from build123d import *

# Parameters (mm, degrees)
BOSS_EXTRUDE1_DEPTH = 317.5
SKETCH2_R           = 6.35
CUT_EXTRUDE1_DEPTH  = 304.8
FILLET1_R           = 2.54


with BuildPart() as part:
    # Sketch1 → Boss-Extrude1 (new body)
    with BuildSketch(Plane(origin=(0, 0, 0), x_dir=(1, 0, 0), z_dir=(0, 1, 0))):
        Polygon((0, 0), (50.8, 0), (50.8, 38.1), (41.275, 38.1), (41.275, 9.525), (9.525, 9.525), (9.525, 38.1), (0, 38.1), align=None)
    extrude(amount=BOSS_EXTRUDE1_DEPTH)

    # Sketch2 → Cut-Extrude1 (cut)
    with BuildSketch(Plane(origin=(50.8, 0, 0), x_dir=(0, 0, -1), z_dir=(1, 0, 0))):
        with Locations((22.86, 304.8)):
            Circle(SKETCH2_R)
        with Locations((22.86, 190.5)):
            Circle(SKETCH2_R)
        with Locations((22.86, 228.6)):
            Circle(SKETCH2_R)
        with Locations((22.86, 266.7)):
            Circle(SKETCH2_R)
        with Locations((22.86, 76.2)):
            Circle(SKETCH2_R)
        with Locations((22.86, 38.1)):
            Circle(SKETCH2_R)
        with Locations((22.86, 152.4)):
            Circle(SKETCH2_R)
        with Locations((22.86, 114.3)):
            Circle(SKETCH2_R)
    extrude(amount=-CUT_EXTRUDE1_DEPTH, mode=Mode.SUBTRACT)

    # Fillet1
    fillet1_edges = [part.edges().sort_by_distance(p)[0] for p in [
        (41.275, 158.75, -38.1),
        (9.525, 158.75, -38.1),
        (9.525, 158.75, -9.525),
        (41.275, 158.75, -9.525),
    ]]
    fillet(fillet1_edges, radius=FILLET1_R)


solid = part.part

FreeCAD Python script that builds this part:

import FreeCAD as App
import Part
import Sketcher
from FreeCAD import Vector
Q = App.Units.Quantity


def edges_at(feature, points):
    """Names of the edges that pass closest to the given points."""
    edges = feature.Shape.Edges
    near = lambda p: min(range(len(edges)), key=lambda i: edges[i].distToShape(Part.Vertex(*p))[0])
    return sorted({f"Edge{near(p) + 1}" for p in points})


def add_polygon(sketch, points):
    """Adds a closed chain of lines whose ends are joined by coincident constraints."""
    first, n = sketch.GeometryCount, len(points)
    for a, b in zip(points, points[1:] + points[:1]):
        sketch.addGeometry(Part.LineSegment(App.Vector(*a, 0), App.Vector(*b, 0)), False)
    for i in range(n):
        sketch.addConstraint(Sketcher.Constraint("Coincident", first + i, 2, first + (i + 1) % n, 1))

doc = App.newDocument("Part")
body = doc.addObject("PartDesign::Body", "Body")

sketch1 = body.newObject("Sketcher::SketchObject", "Sketch")
sketch1.AttachmentSupport = (doc.getObject("XZ_Plane"), [""])
sketch1.MapMode = "FlatFace"
add_polygon(sketch1, [(0, 0), (51, 0), (51, -38), (41, -38), (41, -10), (10, -10), (10, -38), (0, -38)])
sketch1.addConstraint([
    Sketcher.Constraint("Horizontal", 0),
    Sketcher.Constraint("Vertical", 1),
    Sketcher.Constraint("Horizontal", 2),
    Sketcher.Constraint("Vertical", 3),
    Sketcher.Constraint("Horizontal", 4),
    Sketcher.Constraint("Vertical", 5),
    Sketcher.Constraint("Horizontal", 6),
    Sketcher.Constraint("Vertical", 7),
    Sketcher.Constraint("Coincident", 7, 2, -1, 1),
    Sketcher.Constraint("Horizontal", 2, 2, 5, 2),
    Sketcher.Constraint("Equal", 2, 6),
    Sketcher.Constraint("DistanceX", 0, 1, 0, 2, Q("2 in")),
    Sketcher.Constraint("DistanceY", 1, 2, 1, 1, Q("1.5 in")),
    Sketcher.Constraint("DistanceX", 4, 2, 4, 1, Q("1.25 in")),
    Sketcher.Constraint("DistanceY", 3, 1, 3, 2, Q("1.125 in")),
])
pad1 = body.newObject("PartDesign::Pad", "Pad")
pad1.Profile = sketch1
pad1.Length = Q("12.5 in")
pad1.Reversed = True

sketch2 = body.newObject("Sketcher::SketchObject", "Sketch001")
sketch2.AttachmentSupport = (doc.getObject("YZ_Plane"), [""])
sketch2.MapMode = "FlatFace"
sketch2.AttachmentOffset = App.Placement(Vector(0, 0, 2 * 25.4), App.Rotation())
sketch2.addGeometry([
    Part.Circle(Vector(305, -23, 0), Vector(0, 0, 1), 6),
    Part.Circle(Vector(190, -23, 0), Vector(0, 0, 1), 6),
    Part.Circle(Vector(229, -23, 0), Vector(0, 0, 1), 6),
    Part.Circle(Vector(267, -23, 0), Vector(0, 0, 1), 6),
    Part.Circle(Vector(76, -23, 0), Vector(0, 0, 1), 6),
    Part.Circle(Vector(38, -23, 0), Vector(0, 0, 1), 6),
    Part.Circle(Vector(152, -23, 0), Vector(0, 0, 1), 6),
    Part.Circle(Vector(114, -23, 0), Vector(0, 0, 1), 6),
], False)
sketch2.addConstraint([
    Sketcher.Constraint("Equal", 0, 1),
    Sketcher.Constraint("Equal", 1, 2),
    Sketcher.Constraint("Equal", 2, 3),
    Sketcher.Constraint("Equal", 3, 4),
    Sketcher.Constraint("Equal", 4, 5),
    Sketcher.Constraint("Equal", 5, 6),
    Sketcher.Constraint("Equal", 6, 7),
    Sketcher.Constraint("Horizontal", 0, 3, 1, 3),
    Sketcher.Constraint("Horizontal", 1, 3, 2, 3),
    Sketcher.Constraint("Horizontal", 2, 3, 3, 3),
    Sketcher.Constraint("Horizontal", 3, 3, 4, 3),
    Sketcher.Constraint("Horizontal", 4, 3, 5, 3),
    Sketcher.Constraint("Horizontal", 5, 3, 6, 3),
    Sketcher.Constraint("Horizontal", 6, 3, 7, 3),
    Sketcher.Constraint("Diameter", 0, Q("0.5 in")),
    Sketcher.Constraint("DistanceX", -1, 1, 0, 3, Q("12 in")),
    Sketcher.Constraint("DistanceX", -1, 1, 2, 3, Q("9 in")),
    Sketcher.Constraint("DistanceX", -1, 1, 4, 3, Q("3 in")),
    Sketcher.Constraint("DistanceX", -1, 1, 6, 3, Q("6 in")),
    Sketcher.Constraint("DistanceX", 1, 3, 3, 3, Q("3 in")),
    Sketcher.Constraint("DistanceX", 5, 3, 1, 3, Q("6 in")),
    Sketcher.Constraint("DistanceX", 5, 3, 7, 3, Q("3 in")),
    Sketcher.Constraint("DistanceY", 0, 3, -1, 1, Q("0.9 in")),
    Sketcher.Constraint("DistanceX", -1, 1, 1, 3, Q("7.5 in")),
])
pocket1 = body.newObject("PartDesign::Pocket", "Pocket")
pocket1.Profile = sketch2
pocket1.Length = Q("12 in")
doc.recompute()

fillet = body.newObject("PartDesign::Fillet", "Fillet")
fillet.Base = (pocket1, edges_at(pocket1, [
    (41.275, 158.75, -38.1),
    (9.525, 158.75, -38.1),
    (9.525, 158.75, -9.525),
    (41.275, 158.75, -9.525),
]))
fillet.Radius = Q("0.1 in")

doc.recompute()
